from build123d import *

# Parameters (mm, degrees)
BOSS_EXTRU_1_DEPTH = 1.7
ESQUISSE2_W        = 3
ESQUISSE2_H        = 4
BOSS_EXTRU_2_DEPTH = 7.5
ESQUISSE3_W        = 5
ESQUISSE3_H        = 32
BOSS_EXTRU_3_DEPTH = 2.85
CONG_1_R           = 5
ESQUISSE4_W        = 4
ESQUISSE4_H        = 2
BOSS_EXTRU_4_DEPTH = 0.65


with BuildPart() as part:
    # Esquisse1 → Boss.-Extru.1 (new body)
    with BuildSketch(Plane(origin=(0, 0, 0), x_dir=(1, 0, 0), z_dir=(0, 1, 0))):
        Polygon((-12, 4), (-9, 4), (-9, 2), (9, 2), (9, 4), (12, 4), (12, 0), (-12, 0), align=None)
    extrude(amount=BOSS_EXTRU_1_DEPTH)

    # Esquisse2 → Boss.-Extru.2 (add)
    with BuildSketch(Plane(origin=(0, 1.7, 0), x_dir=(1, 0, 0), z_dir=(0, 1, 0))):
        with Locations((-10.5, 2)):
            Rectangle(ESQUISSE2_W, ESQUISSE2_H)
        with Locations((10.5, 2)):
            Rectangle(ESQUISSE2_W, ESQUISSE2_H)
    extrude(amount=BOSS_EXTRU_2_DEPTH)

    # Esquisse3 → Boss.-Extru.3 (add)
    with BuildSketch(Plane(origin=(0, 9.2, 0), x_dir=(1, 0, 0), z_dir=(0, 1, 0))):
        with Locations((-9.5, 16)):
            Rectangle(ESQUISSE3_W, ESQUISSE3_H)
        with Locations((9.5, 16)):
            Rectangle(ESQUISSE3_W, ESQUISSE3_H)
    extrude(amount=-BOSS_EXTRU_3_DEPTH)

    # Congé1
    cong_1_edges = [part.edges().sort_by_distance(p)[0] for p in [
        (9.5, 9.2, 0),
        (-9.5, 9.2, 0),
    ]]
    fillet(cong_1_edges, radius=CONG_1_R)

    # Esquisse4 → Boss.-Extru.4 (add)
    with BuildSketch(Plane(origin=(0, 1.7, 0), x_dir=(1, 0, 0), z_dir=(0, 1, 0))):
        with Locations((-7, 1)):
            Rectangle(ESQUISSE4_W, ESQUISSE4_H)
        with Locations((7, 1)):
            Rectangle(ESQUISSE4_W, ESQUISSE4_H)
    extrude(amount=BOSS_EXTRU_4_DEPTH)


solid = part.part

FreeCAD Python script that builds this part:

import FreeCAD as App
import Part
import Sketcher


def edges_at(feature, points):
    """Names of the edges that pass closest to the given points."""
    edges = feature.Shape.Edges
    near = lambda p: min(range(len(edges)), key=lambda i: edges[i].distToShape(Part.Vertex(*p))[0])
    return sorted({f"Edge{near(p) + 1}" for p in points})


def add_polygon(sketch, points):
    """Adds a closed chain of lines whose ends are joined by coincident constraints."""
    first, n = sketch.GeometryCount, len(points)
    for a, b in zip(points, points[1:] + points[:1]):
        sketch.addGeometry(Part.LineSegment(App.Vector(*a, 0), App.Vector(*b, 0)), False)
    for i in range(n):
        sketch.addConstraint(Sketcher.Constraint("Coincident", first + i, 2, first + (i + 1) % n, 1))

doc = App.newDocument("Part")
body = doc.addObject("PartDesign::Body", "Body")

sketch1 = body.newObject("Sketcher::SketchObject", "Sketch")
sketch1.AttachmentSupport = (doc.getObject("XZ_Plane"), [""])
sketch1.MapMode = "FlatFace"
add_polygon(sketch1, [(-9, -4), (-12, -4), (-12, 0), (12, 0), (12, -4), (9, -4), (9, -2), (-9, -2)])
sketch1.addConstraint([
    Sketcher.Constraint("Horizontal", 0),
    Sketcher.Constraint("Vertical", 1),
    Sketcher.Constraint("Horizontal", 2),
    Sketcher.Constraint("Vertical", 3),
    Sketcher.Constraint("Horizontal", 4),
    Sketcher.Constraint("Vertical", 5),
    Sketcher.Constraint("Horizontal", 6),
    Sketcher.Constraint("Vertical", 7),
    Sketcher.Constraint("Symmetric", 1, 2, 2, 2, -1, 1),
    Sketcher.Constraint("Symmetric", 4, 2, 7, 2, -2),
    Sketcher.Constraint("DistanceX", 0, 2, 0, 1, 3.0),
    Sketcher.Constraint("DistanceX", 2, 1, 2, 2, 24.0),
    Sketcher.Constraint("DistanceY", 1, 1, 1, 2, 4.0),
    Sketcher.Constraint("DistanceY", 5, 1, 5, 2, 2.0),
])
pad1 = body.newObject("PartDesign::Pad", "Pad")
pad1.Profile = sketch1
pad1.Length = 1.7
pad1.Reversed = True

sketch2 = body.newObject("Sketcher::SketchObject", "Sketch001")
sketch2.AttachmentSupport = (doc.getObject("XZ_Plane"), [""])
sketch2.MapMode = "FlatFace"
sketch2.AttachmentOffset = App.Placement(App.Vector(0, 0, -1.7), App.Rotation())
add_polygon(sketch2, [(-12, -4), (-12, 0), (-9, 0), (-9, -4)])
add_polygon(sketch2, [(9, -4), (9, 0), (12, 0), (12, -4)])
sketch2.addConstraint([
    Sketcher.Constraint("Vertical", 0),
    Sketcher.Constraint("Horizontal", 1),
    Sketcher.Constraint("Vertical", 2),
    Sketcher.Constraint("Horizontal", 3),
    Sketcher.Constraint("Vertical", 4),
    Sketcher.Constraint("Horizontal", 5),
    Sketcher.Constraint("Vertical", 6),
    Sketcher.Constraint("Horizontal", 7),
    Sketcher.Constraint("Symmetric", 1, 2, 4, 2, -1, 1),
    Sketcher.Constraint("Symmetric", 0, 2, 5, 2, -2),
    Sketcher.Constraint("Horizontal", 3, 2, 6, 2),
    Sketcher.Constraint("DistanceX", 1, 1, 1, 2, 3.0),
    Sketcher.Constraint("DistanceY", 0, 1, 0, 2, 4.0),
    Sketcher.Constraint("DistanceX", 0, 2, -1, 1, 12.0),
])
pad2 = body.newObject("PartDesign::Pad", "Pad001")
pad2.Profile = sketch2
pad2.Length = 7.5
pad2.Reversed = True

sketch3 = body.newObject("Sketcher::SketchObject", "Sketch002")
sketch3.AttachmentSupport = (doc.getObject("XZ_Plane"), [""])
sketch3.MapMode = "FlatFace"
sketch3.AttachmentOffset = App.Placement(App.Vector(0, 0, -9.2), App.Rotation())
add_polygon(sketch3, [(-12, -32), (-12, 0), (-7, 0), (-7, -32)])
add_polygon(sketch3, [(7, -32), (7, 0), (12, 0), (12, -32)])
sketch3.addConstraint([
    Sketcher.Constraint("Vertical", 0),
    Sketcher.Constraint("Horizontal", 1),
    Sketcher.Constraint("Vertical", 2),
    Sketcher.Constraint("Horizontal", 3),
    Sketcher.Constraint("Vertical", 4),
    Sketcher.Constraint("Horizontal", 5),
    Sketcher.Constraint("Vertical", 6),
    Sketcher.Constraint("Horizontal", 7),
    Sketcher.Constraint("Symmetric", 1, 2, 4, 2, -1, 1),
    Sketcher.Constraint("Symmetric", 0, 2, 5, 2, -2),
    Sketcher.Constraint("Horizontal", 3, 2, 6, 2),
    Sketcher.Constraint("DistanceX", 1, 1, 1, 2, 5.0),
    Sketcher.Constraint("DistanceY", 0, 1, 0, 2, 32.0),
    Sketcher.Constraint("DistanceX", 0, 2, -1, 1, 12.0),
])
pad3 = body.newObject("PartDesign::Pad", "Pad002")
pad3.Profile = sketch3
pad3.Length = 2.85
doc.recompute()

fillet = body.newObject("PartDesign::Fillet", "Fillet")
fillet.Base = (pad3, edges_at(pad3, [(9.5, 9.2, 0), (-9.5, 9.2, 0)]))
fillet.Radius = 5

sketch4 = body.newObject("Sketcher::SketchObject", "Sketch003")
sketch4.AttachmentSupport = (doc.getObject("XZ_Plane"), [""])
sketch4.MapMode = "FlatFace"
sketch4.AttachmentOffset = App.Placement(App.Vector(0, 0, -1.7), App.Rotation())
add_polygon(sketch4, [(-9, -2), (-9, 0), (-5, 0), (-5, -2)])
add_polygon(sketch4, [(5, -2), (5, 0), (9, 0), (9, -2)])
sketch4.addConstraint([
    Sketcher.Constraint("Vertical", 0),
    Sketcher.Constraint("Horizontal", 1),
    Sketcher.Constraint("Vertical", 2),
    Sketcher.Constraint("Horizontal", 3),
    Sketcher.Constraint("Vertical", 4),
    Sketcher.Constraint("Horizontal", 5),
    Sketcher.Constraint("Vertical", 6),
    Sketcher.Constraint("Horizontal", 7),
    Sketcher.Constraint("Symmetric", 1, 2, 4, 2, -1, 1),
    Sketcher.Constraint("Symmetric", 0, 2, 5, 2, -2),
    Sketcher.Constraint("Horizontal", 3, 2, 6, 2),
    Sketcher.Constraint("DistanceX", 1, 1, 1, 2, 4.0),
    Sketcher.Constraint("DistanceY", 0, 1, 0, 2, 2.0),
    Sketcher.Constraint("DistanceX", 0, 2, -1, 1, 9.0),
])
pad4 = body.newObject("PartDesign::Pad", "Pad003")
pad4.Profile = sketch4
pad4.Length = 0.65
pad4.Reversed = True

doc.recompute()
